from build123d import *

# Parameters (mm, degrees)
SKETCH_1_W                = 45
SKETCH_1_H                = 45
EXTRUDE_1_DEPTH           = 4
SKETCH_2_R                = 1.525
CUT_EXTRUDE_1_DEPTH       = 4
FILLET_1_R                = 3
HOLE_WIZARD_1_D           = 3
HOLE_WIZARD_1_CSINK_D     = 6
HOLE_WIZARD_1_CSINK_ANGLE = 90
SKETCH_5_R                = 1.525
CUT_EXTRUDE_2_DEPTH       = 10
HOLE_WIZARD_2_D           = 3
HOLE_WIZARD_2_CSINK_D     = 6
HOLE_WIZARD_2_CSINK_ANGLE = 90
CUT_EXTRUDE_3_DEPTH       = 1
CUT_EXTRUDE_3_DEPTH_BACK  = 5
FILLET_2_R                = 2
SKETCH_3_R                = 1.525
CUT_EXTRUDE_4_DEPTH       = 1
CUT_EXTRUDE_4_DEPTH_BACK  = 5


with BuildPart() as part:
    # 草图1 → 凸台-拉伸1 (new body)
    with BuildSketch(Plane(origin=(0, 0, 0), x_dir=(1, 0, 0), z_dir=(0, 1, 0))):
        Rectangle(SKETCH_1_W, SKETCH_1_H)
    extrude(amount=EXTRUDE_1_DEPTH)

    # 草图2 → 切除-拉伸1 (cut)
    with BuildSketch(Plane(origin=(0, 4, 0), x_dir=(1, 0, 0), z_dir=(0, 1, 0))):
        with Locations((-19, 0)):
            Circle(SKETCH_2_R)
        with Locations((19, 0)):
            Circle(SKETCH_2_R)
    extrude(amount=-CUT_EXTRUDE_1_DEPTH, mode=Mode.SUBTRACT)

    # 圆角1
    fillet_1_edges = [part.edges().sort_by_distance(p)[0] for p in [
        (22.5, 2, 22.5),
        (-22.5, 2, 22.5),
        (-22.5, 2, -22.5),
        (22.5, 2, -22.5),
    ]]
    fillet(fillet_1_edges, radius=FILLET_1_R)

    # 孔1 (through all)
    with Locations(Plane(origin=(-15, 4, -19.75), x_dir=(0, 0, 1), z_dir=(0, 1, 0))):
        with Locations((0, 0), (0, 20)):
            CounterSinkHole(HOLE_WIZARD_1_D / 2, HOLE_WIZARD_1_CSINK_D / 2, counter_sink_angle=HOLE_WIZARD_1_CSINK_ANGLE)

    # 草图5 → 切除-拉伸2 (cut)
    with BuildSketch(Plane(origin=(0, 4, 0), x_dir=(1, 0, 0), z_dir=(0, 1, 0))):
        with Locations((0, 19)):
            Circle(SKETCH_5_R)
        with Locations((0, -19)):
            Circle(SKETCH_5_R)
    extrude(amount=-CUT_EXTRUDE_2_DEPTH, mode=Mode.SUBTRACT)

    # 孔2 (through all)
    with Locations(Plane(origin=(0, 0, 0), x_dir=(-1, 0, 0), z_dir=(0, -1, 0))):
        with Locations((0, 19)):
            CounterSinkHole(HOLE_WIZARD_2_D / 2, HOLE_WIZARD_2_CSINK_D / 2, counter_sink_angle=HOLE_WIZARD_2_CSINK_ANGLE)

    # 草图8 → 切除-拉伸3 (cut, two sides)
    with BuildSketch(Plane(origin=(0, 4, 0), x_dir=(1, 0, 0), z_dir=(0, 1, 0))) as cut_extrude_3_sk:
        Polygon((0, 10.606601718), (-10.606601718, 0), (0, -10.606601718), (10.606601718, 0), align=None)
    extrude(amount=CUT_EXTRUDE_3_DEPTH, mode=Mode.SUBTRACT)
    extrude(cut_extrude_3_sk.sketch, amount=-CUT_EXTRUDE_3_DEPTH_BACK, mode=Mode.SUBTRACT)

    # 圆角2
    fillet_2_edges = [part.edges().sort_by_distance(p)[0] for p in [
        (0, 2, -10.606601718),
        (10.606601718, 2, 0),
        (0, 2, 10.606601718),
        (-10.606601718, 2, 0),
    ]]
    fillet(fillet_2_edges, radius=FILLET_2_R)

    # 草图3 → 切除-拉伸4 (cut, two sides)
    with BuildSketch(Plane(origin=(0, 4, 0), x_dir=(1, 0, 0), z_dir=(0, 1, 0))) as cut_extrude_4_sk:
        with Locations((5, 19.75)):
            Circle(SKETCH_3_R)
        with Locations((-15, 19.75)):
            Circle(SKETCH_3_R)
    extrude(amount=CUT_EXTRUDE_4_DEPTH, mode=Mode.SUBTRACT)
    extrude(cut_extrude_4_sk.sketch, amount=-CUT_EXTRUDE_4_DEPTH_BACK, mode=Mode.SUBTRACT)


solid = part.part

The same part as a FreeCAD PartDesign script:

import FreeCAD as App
import Part
import Sketcher
from FreeCAD import Vector


def edges_at(feature, points):
    """Names of the edges that pass closest to the given points."""
    edges = feature.Shape.Edges
    near = lambda p: min(range(len(edges)), key=lambda i: edges[i].distToShape(Part.Vertex(*p))[0])
    return sorted({f"Edge{near(p) + 1}" for p in points})

doc = App.newDocument("Part")
body = doc.addObject("PartDesign::Body", "Body")

# Sketch on XZ plane
sketch1 = doc.addObject("Sketcher::SketchObject", "Sketch")
body.addObject(sketch1)
sketch1.AttachmentSupport = (doc.XZ_Plane, [""])
sketch1.MapMode = "FlatFace"
sketch1.addGeometry([
    Part.LineSegment(Vector(-22, -22, 0), Vector(-22, 22, 0)),
    Part.LineSegment(Vector(-22, 22, 0), Vector(22, 22, 0)),
    Part.LineSegment(Vector(22, 22, 0), Vector(22, -22, 0)),
    Part.LineSegment(Vector(22, -22, 0), Vector(-22, -22, 0)),
], False)
sketch1.addConstraint([
    Sketcher.Constraint("Coincident", 0, 2, 1, 1),
    Sketcher.Constraint("Coincident", 1, 2, 2, 1),
    Sketcher.Constraint("Coincident", 2, 2, 3, 1),
    Sketcher.Constraint("Coincident", 3, 2, 0, 1),
    Sketcher.Constraint("Vertical", 0),
    Sketcher.Constraint("Horizontal", 1),
    Sketcher.Constraint("Vertical", 2),
    Sketcher.Constraint("Horizontal", 3),
    Sketcher.Constraint("Symmetric", 0, 2, 2, 2, -1, 1),
    Sketcher.Constraint("Equal", 3, 0),
    Sketcher.Constraint("DistanceX", 1, 1, 1, 2, 45.0),
])
pad1 = doc.addObject("PartDesign::Pad", "Pad")
body.addObject(pad1)
pad1.Profile = sketch1
pad1.Length = 4
pad1.Reversed = True

# Sketch on XZ plane
sketch2 = doc.addObject("Sketcher::SketchObject", "Sketch001")
body.addObject(sketch2)
sketch2.AttachmentSupport = (doc.XZ_Plane, [""])
sketch2.MapMode = "FlatFace"
sketch2.AttachmentOffset = App.Placement(Vector(0, 0, -4), App.Rotation())
sketch2.addGeometry([
    Part.Circle(Vector(-19, 0, 0), Vector(0, 0, 1), 1.5),
    Part.Circle(Vector(19, 0, 0), Vector(0, 0, 1), 1.5),
], False)
sketch2.addConstraint([
    Sketcher.Constraint("Equal", 0, 1),
    Sketcher.Constraint("Symmetric", 0, 3, 1, 3, -1, 1),
    Sketcher.Constraint("PointOnObject", 0, 3, -1),
    Sketcher.Constraint("Diameter", 0, 3.05),
    Sketcher.Constraint("DistanceX", 0, 3, -1, 1, 19.0),
])
pocket1 = doc.addObject("PartDesign::Pocket", "Pocket")
body.addObject(pocket1)
pocket1.Profile = sketch2
pocket1.Length = 4
pocket1.Reversed = True
doc.recompute()

fillet = doc.addObject("PartDesign::Fillet", "Fillet")
body.addObject(fillet)
fillet.Base = (pocket1, edges_at(pocket1, [
    (22.5, 2, 22.5),
    (-22.5, 2, 22.5),
    (-22.5, 2, -22.5),
    (22.5, 2, -22.5),
]))
fillet.Radius = 3

# Sketch on XZ plane
sketch3 = doc.addObject("Sketcher::SketchObject", "Sketch002")
body.addObject(sketch3)
sketch3.AttachmentSupport = (doc.XZ_Plane, [""])
sketch3.MapMode = "FlatFace"
sketch3.AttachmentOffset = App.Placement(Vector(0, 0, -4), App.Rotation())
sketch3.addGeometry([
    Part.Circle(Vector(-15, -19.8, 0), Vector(0, 0, 1), 1.5),
    Part.Circle(Vector(5, -19.8, 0), Vector(0, 0, 1), 1.5),
], False)
sketch3.addConstraint([
    Sketcher.Constraint("Equal", 0, 1),
    Sketcher.Constraint("Horizontal", 0, 3, 1, 3),
    Sketcher.Constraint("Diameter", 0, 3.0),
    Sketcher.Constraint("DistanceX", 0, 3, -1, 1, 15.0),
    Sketcher.Constraint("DistanceX", -1, 1, 1, 3, 5.0),
    Sketcher.Constraint("DistanceY", 0, 3, -1, 1, 19.75),
])
doc.recompute()
hole = doc.addObject("PartDesign::Hole", "Hole")
body.addObject(hole)
hole.Profile = sketch3
hole.ThreadType = "None"
hole.Diameter = 3
hole.DepthType = "ThroughAll"
hole.HoleCutType = "Countersink"
hole.HoleCutDiameter = 6
hole.HoleCutCountersinkAngle = 90
hole.Reversed = True

# Sketch on XZ plane
sketch4 = doc.addObject("Sketcher::SketchObject", "Sketch003")
body.addObject(sketch4)
sketch4.AttachmentSupport = (doc.XZ_Plane, [""])
sketch4.MapMode = "FlatFace"
sketch4.AttachmentOffset = App.Placement(Vector(0, 0, -4), App.Rotation())
sketch4.addGeometry([
    Part.Circle(Vector(0, -19, 0), Vector(0, 0, 1), 1.5),
    Part.Circle(Vector(0, 19, 0), Vector(0, 0, 1), 1.5),
], False)
sketch4.addConstraint([
    Sketcher.Constraint("Equal", 0, 1),
    Sketcher.Constraint("Symmetric", 0, 3, 1, 3, -1, 1),
    Sketcher.Constraint("PointOnObject", 0, 3, -2),
    Sketcher.Constraint("Diameter", 0, 3.05),
    Sketcher.Constraint("DistanceY", 0, 3, -1, 1, 19.0),
])
pocket2 = doc.addObject("PartDesign::Pocket", "Pocket001")
body.addObject(pocket2)
pocket2.Profile = sketch4
pocket2.Length = 10
pocket2.Reversed = True

# Sketch on XZ plane
sketch5 = doc.addObject("Sketcher::SketchObject", "Sketch004")
body.addObject(sketch5)
sketch5.AttachmentSupport = (doc.XZ_Plane, [""])
sketch5.MapMode = "FlatFace"
sketch5.addGeometry(Part.Circle(Vector(0, -19, 0), Vector(0, 0, 1), 1.5), False)
sketch5.addConstraint([
    Sketcher.Constraint("PointOnObject", 0, 3, -2),
    Sketcher.Constraint("Diameter", 0, 3.0),
    Sketcher.Constraint("DistanceY", 0, 3, -1, 1, 19.0),
])
doc.recompute()
hole2 = doc.addObject("PartDesign::Hole", "Hole001")
body.addObject(hole2)
hole2.Profile = sketch5
hole2.ThreadType = "None"
hole2.Diameter = 3
hole2.DepthType = "ThroughAll"
hole2.HoleCutType = "Countersink"
hole2.HoleCutDiameter = 6
hole2.HoleCutCountersinkAngle = 90

# Sketch on XZ plane
sketch6 = doc.addObject("Sketcher::SketchObject", "Sketch005")
body.addObject(sketch6)
sketch6.AttachmentSupport = (doc.XZ_Plane, [""])
sketch6.MapMode = "FlatFace"
sketch6.AttachmentOffset = App.Placement(Vector(0, 0, -4), App.Rotation())
sketch6.addGeometry([
    Part.LineSegment(Vector(0, -11, 0), Vector(-11, 0, 0)),
    Part.LineSegment(Vector(-11, 0, 0), Vector(0, 11, 0)),
    Part.LineSegment(Vector(0, 11, 0), Vector(11, 0, 0)),
    Part.LineSegment(Vector(11, 0, 0), Vector(0, -11, 0)),
], False)
sketch6.addConstraint([
    Sketcher.Constraint("Coincident", 0, 2, 1, 1),
    Sketcher.Constraint("Coincident", 1, 2, 2, 1),
    Sketcher.Constraint("Coincident", 2, 2, 3, 1),
    Sketcher.Constraint("Coincident", 3, 2, 0, 1),
    Sketcher.Constraint("Symmetric", 0, 2, 2, 2, -1, 1),
    Sketcher.Constraint("Symmetric", 1, 2, 3, 2, -1, 1),
    Sketcher.Constraint("PointOnObject", 0, 2, -1),
    Sketcher.Constraint("PointOnObject", 1, 2, -2),
    Sketcher.Constraint("Perpendicular", 0, 1),
    Sketcher.Constraint("Distance", 0, 15.0),
])
pocket3 = doc.addObject("PartDesign::Pocket", "Pocket002")
body.addObject(pocket3)
pocket3.Profile = sketch6
pocket3.Type = "ThroughAll"
pocket3.Midplane = True
doc.recompute()

fillet2 = doc.addObject("PartDesign::Fillet", "Fillet001")
body.addObject(fillet2)
fillet2.Base = (pocket3, edges_at(pocket3, [
    (0, 2, -10.607),
    (10.607, 2, 0),
    (0, 2, 10.607),
    (-10.607, 2, 0),
]))
fillet2.Radius = 2

# Sketch on XZ plane
sketch7 = doc.addObject("Sketcher::SketchObject", "Sketch006")
body.addObject(sketch7)
sketch7.AttachmentSupport = (doc.XZ_Plane, [""])
sketch7.MapMode = "FlatFace"
sketch7.AttachmentOffset = App.Placement(Vector(0, 0, -4), App.Rotation())
sketch7.addGeometry([
    Part.Circle(Vector(5, -19.8, 0), Vector(0, 0, 1), 1.5),
    Part.Circle(Vector(-15, -19.8, 0), Vector(0, 0, 1), 1.5),
], False)
sketch7.addConstraint([
    Sketcher.Constraint("Equal", 0, 1),
    Sketcher.Constraint("Horizontal", 0, 3, 1, 3),
    Sketcher.Constraint("Diameter", 0, 3.05),
    Sketcher.Constraint("DistanceX", -1, 1, 0, 3, 5.0),
    Sketcher.Constraint("DistanceX", 1, 3, -1, 1, 15.0),
    Sketcher.Constraint("DistanceY", 0, 3, -1, 1, 19.75),
])
pocket4 = doc.addObject("PartDesign::Pocket", "Pocket003")
body.addObject(pocket4)
pocket4.Profile = sketch7
pocket4.Type = "ThroughAll"
pocket4.Midplane = True

doc.recompute()
